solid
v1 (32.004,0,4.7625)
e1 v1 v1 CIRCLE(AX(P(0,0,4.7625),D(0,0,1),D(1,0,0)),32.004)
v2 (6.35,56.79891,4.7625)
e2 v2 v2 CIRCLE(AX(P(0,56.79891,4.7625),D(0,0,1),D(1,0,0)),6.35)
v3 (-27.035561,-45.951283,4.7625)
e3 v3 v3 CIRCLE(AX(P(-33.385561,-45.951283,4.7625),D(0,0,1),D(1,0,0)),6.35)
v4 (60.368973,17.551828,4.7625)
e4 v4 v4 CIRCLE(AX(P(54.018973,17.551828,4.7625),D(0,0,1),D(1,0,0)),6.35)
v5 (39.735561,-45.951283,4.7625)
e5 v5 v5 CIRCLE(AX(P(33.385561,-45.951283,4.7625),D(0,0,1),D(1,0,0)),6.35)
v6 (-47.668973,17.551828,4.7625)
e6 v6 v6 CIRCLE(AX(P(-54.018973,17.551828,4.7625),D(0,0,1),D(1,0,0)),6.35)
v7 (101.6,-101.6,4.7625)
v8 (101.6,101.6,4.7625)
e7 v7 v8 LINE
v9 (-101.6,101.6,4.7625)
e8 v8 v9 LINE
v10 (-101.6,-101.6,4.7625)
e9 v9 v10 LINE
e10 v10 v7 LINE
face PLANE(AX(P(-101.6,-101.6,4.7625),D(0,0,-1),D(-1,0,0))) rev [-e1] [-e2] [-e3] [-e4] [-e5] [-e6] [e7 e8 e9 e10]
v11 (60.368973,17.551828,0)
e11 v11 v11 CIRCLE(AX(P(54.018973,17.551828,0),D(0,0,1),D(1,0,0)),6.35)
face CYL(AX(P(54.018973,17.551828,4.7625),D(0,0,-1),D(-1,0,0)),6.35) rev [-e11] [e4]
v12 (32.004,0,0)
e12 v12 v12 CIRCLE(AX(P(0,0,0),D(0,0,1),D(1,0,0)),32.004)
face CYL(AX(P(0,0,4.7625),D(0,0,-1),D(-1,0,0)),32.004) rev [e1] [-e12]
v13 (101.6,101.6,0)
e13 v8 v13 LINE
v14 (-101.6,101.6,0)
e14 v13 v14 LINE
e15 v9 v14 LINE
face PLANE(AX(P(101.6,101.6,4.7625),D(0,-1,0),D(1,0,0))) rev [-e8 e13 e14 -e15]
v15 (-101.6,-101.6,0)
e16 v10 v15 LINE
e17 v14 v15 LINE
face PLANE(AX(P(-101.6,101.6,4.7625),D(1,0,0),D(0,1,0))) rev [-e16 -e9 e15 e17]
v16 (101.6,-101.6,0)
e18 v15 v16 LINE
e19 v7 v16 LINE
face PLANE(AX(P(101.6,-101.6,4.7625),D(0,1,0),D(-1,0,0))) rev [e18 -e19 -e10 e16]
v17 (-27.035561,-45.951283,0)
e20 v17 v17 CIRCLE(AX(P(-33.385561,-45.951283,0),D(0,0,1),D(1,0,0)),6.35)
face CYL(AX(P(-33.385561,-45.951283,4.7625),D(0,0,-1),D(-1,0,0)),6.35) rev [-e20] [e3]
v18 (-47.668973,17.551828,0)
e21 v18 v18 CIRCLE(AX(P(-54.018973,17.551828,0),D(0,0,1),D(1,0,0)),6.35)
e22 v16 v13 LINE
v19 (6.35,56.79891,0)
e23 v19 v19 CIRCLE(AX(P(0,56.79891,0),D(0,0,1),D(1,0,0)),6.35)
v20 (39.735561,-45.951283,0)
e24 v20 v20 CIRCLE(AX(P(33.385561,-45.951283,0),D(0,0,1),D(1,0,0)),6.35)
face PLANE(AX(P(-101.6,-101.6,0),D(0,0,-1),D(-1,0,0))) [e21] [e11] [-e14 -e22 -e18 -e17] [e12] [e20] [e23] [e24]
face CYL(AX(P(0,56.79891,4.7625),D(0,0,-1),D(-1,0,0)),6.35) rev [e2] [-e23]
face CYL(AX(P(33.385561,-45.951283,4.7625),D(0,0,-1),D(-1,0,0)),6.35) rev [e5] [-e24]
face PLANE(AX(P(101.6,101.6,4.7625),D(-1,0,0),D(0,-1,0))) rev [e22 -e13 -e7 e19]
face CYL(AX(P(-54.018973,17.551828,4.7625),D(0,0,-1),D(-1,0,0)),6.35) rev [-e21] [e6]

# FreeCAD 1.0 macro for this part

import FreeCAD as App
import Part
import Sketcher

V = App.Vector
Q = App.Units.Quantity

doc = App.newDocument("Part")
body = doc.addObject("PartDesign::Body", "Body")

sketch1 = body.newObject("Sketcher::SketchObject", "Sketch")
sketch1.AttachmentSupport = (doc.getObject("XY_Plane"), [""])
sketch1.MapMode = "FlatFace"
sketch1.addGeometry([
    Part.LineSegment(V(-101.6, 101.6, 0), V(-101.6, -101.6, 0)),
    Part.LineSegment(V(-101.6, -101.6, 0), V(101.6, -101.6, 0)),
    Part.LineSegment(V(101.6, -101.6, 0), V(101.6, 101.6, 0)),
    Part.LineSegment(V(101.6, 101.6, 0), V(-101.6, 101.6, 0)),
    Part.Circle(V(-33.385561, -45.951283, 0), V(0, 0, 1), 6.35),
    Part.Circle(V(33.385561, -45.951283, 0), V(0, 0, 1), 6.35),
    Part.Circle(V(0, 0, 0), V(0, 0, 1), 32.004),
    Part.Circle(V(-54.018973, 17.551828, 0), V(0, 0, 1), 6.35),
    Part.Circle(V(54.018973, 17.551828, 0), V(0, 0, 1), 6.35),
    Part.Circle(V(0, 56.79891, 0), V(0, 0, 1), 6.35),
], False)
sketch1.addConstraint([
    Sketcher.Constraint("Coincident", 0, 2, 1, 1),
    Sketcher.Constraint("Coincident", 1, 2, 2, 1),
    Sketcher.Constraint("Coincident", 2, 2, 3, 1),
    Sketcher.Constraint("Coincident", 3, 2, 0, 1),
    Sketcher.Constraint("Vertical", 0),
    Sketcher.Constraint("Horizontal", 1),
    Sketcher.Constraint("Vertical", 2),
    Sketcher.Constraint("Horizontal", 3),
    Sketcher.Constraint("Coincident", 6, 3, -1, 1),
    Sketcher.Constraint("Equal", 4, 5),
    Sketcher.Constraint("Equal", 5, 7),
    Sketcher.Constraint("Equal", 7, 8),
    Sketcher.Constraint("Equal", 8, 9),
    Sketcher.Constraint("Symmetric", 0, 2, 2, 2, -1, 1),
    Sketcher.Constraint("Symmetric", 4, 3, 5, 3, -2),
    Sketcher.Constraint("Symmetric", 7, 3, 8, 3, -2),
    Sketcher.Constraint("PointOnObject", 9, 3, -2),
    Sketcher.Constraint("Equal", 3, 0),
    Sketcher.Constraint("Diameter", 4, Q("0.5 in")),
    Sketcher.Constraint("Diameter", 6, Q("2.52 in")),
    Sketcher.Constraint("DistanceX", 1, 1, 1, 2, Q("8 in")),
    Sketcher.Constraint("DistanceX", 4, 3, -1, 1, 33.385561),
    Sketcher.Constraint("DistanceY", -1, 1, 7, 3, 17.551828),
    Sketcher.Constraint("DistanceY", -1, 1, 9, 3, 56.79891),
    Sketcher.Constraint("DistanceX", 7, 3, 4, 3, 20.633412),
    Sketcher.Constraint("DistanceY", 4, 3, 7, 3, 63.503111),
])
pad1 = body.newObject("PartDesign::Pad", "Pad")
pad1.Profile = sketch1
pad1.Length = Q("0.1875 in")

doc.recompute()
